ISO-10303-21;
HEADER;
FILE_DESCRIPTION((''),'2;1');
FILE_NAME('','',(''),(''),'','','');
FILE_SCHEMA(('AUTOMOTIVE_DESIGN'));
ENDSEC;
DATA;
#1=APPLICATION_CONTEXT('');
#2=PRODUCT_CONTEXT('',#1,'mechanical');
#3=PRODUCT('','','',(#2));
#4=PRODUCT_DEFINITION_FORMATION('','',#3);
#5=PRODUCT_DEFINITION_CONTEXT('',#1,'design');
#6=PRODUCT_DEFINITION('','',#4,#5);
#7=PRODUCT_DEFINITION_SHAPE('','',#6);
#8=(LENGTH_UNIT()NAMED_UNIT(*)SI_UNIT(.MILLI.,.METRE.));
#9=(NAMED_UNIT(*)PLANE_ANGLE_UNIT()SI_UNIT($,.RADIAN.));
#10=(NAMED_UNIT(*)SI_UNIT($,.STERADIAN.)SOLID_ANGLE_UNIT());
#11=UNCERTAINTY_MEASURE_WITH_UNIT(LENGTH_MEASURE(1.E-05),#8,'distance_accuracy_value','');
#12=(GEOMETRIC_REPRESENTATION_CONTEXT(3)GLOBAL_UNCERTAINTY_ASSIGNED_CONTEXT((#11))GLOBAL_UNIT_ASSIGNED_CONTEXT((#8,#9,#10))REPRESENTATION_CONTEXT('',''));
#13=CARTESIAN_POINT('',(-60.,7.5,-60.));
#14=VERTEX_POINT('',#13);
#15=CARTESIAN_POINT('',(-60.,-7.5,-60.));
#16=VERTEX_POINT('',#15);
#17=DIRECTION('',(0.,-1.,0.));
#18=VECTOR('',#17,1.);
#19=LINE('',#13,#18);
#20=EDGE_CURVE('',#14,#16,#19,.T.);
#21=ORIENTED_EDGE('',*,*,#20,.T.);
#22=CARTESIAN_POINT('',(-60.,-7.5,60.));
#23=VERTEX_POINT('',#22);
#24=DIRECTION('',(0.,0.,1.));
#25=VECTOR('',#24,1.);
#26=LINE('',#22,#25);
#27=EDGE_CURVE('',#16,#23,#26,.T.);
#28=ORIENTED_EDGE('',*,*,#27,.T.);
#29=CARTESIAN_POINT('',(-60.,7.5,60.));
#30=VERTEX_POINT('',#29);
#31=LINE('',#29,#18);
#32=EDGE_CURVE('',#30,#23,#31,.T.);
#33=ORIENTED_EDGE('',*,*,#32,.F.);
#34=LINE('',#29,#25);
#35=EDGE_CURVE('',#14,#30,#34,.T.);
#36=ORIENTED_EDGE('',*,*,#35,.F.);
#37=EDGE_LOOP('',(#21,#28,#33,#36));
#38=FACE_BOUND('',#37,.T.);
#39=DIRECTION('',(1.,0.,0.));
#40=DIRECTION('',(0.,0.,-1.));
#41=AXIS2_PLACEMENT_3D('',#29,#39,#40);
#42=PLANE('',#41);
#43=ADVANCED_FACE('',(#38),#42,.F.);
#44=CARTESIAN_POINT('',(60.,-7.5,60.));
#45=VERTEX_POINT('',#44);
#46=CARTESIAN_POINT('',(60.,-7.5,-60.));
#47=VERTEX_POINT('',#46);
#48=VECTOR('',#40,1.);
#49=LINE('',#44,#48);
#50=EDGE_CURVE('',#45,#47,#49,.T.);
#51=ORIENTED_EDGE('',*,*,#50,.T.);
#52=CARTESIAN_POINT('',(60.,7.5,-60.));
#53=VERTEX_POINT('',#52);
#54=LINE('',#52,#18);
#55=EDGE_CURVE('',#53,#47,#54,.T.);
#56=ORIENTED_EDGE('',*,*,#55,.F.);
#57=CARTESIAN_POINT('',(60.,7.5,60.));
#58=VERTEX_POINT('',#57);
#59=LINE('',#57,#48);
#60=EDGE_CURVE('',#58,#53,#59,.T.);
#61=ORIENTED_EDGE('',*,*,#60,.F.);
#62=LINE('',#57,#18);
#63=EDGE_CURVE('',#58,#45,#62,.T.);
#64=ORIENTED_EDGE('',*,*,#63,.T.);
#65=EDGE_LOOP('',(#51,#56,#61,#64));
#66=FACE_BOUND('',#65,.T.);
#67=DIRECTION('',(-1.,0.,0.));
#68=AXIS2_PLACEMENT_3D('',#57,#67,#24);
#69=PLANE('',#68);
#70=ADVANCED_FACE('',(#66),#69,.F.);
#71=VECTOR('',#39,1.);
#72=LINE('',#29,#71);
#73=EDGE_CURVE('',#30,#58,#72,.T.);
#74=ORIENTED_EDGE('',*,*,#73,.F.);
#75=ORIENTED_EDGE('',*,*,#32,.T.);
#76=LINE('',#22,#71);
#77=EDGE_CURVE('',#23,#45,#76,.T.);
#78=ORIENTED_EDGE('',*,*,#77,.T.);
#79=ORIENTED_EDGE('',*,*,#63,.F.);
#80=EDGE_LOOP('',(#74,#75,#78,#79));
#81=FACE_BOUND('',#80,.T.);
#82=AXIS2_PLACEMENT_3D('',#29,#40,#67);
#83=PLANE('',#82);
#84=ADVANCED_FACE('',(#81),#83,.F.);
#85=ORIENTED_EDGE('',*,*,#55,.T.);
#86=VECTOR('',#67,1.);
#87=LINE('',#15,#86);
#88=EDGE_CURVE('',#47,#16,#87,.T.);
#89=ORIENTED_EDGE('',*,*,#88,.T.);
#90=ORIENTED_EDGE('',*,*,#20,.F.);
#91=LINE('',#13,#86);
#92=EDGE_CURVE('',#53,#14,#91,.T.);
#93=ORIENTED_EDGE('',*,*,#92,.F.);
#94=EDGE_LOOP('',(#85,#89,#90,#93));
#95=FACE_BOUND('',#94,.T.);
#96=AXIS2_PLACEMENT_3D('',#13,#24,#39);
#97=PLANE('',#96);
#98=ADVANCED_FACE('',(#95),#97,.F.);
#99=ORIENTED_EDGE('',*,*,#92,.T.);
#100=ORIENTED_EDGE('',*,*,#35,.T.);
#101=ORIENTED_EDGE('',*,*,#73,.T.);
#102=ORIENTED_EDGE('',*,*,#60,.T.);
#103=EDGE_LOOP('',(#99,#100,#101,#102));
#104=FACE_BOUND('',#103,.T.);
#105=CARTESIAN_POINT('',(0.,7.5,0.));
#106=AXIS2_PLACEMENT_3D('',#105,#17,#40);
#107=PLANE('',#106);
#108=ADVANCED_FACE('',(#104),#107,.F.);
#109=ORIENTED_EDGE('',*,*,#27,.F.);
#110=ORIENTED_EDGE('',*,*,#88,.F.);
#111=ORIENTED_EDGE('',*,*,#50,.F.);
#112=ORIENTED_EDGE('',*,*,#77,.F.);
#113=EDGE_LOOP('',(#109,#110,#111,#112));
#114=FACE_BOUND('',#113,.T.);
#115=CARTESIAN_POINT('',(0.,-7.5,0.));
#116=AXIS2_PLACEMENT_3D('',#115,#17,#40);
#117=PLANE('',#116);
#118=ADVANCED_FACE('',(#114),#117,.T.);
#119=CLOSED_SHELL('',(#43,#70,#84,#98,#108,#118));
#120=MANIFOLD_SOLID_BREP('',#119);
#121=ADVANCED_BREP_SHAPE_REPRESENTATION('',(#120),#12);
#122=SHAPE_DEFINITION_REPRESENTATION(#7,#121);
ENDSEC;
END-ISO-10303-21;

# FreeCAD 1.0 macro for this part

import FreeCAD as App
import Part
import Sketcher
from FreeCAD import Vector
Q = App.Units.Quantity


def add_polygon(sketch, points):
    """Adds a closed chain of lines whose ends are joined by coincident constraints."""
    first, n = sketch.GeometryCount, len(points)
    for a, b in zip(points, points[1:] + points[:1]):
        sketch.addGeometry(Part.LineSegment(App.Vector(*a, 0), App.Vector(*b, 0)), False)
    for i in range(n):
        sketch.addConstraint(Sketcher.Constraint("Coincident", first + i, 2, first + (i + 1) % n, 1))

doc = App.newDocument("Part")
body = doc.addObject("PartDesign::Body", "Body")

# Sketch on XZ plane
sketch1 = body.newObject("Sketcher::SketchObject", "Sketch")
sketch1.AttachmentSupport = (doc.getObject("XZ_Plane"), [""])
sketch1.MapMode = "FlatFace"
add_polygon(sketch1, [(-60, -60), (-60, 60), (60, 60), (60, -60)])  # lines 0-3
sketch1.addConstraint([
    Sketcher.Constraint("Vertical", 0),
    Sketcher.Constraint("Horizontal", 1),
    Sketcher.Constraint("Vertical", 2),
    Sketcher.Constraint("Horizontal", 3),
    Sketcher.Constraint("Symmetric", 0, 2, 2, 2, -1, 1),
    Sketcher.Constraint("Equal", 3, 0),
    Sketcher.Constraint("DistanceX", 1, 1, 1, 2, Q("120 mm")),
])
pad1 = body.newObject("PartDesign::Pad", "Pad")
pad1.Profile = sketch1
pad1.Length = 15
pad1.Midplane = True

doc.recompute()
